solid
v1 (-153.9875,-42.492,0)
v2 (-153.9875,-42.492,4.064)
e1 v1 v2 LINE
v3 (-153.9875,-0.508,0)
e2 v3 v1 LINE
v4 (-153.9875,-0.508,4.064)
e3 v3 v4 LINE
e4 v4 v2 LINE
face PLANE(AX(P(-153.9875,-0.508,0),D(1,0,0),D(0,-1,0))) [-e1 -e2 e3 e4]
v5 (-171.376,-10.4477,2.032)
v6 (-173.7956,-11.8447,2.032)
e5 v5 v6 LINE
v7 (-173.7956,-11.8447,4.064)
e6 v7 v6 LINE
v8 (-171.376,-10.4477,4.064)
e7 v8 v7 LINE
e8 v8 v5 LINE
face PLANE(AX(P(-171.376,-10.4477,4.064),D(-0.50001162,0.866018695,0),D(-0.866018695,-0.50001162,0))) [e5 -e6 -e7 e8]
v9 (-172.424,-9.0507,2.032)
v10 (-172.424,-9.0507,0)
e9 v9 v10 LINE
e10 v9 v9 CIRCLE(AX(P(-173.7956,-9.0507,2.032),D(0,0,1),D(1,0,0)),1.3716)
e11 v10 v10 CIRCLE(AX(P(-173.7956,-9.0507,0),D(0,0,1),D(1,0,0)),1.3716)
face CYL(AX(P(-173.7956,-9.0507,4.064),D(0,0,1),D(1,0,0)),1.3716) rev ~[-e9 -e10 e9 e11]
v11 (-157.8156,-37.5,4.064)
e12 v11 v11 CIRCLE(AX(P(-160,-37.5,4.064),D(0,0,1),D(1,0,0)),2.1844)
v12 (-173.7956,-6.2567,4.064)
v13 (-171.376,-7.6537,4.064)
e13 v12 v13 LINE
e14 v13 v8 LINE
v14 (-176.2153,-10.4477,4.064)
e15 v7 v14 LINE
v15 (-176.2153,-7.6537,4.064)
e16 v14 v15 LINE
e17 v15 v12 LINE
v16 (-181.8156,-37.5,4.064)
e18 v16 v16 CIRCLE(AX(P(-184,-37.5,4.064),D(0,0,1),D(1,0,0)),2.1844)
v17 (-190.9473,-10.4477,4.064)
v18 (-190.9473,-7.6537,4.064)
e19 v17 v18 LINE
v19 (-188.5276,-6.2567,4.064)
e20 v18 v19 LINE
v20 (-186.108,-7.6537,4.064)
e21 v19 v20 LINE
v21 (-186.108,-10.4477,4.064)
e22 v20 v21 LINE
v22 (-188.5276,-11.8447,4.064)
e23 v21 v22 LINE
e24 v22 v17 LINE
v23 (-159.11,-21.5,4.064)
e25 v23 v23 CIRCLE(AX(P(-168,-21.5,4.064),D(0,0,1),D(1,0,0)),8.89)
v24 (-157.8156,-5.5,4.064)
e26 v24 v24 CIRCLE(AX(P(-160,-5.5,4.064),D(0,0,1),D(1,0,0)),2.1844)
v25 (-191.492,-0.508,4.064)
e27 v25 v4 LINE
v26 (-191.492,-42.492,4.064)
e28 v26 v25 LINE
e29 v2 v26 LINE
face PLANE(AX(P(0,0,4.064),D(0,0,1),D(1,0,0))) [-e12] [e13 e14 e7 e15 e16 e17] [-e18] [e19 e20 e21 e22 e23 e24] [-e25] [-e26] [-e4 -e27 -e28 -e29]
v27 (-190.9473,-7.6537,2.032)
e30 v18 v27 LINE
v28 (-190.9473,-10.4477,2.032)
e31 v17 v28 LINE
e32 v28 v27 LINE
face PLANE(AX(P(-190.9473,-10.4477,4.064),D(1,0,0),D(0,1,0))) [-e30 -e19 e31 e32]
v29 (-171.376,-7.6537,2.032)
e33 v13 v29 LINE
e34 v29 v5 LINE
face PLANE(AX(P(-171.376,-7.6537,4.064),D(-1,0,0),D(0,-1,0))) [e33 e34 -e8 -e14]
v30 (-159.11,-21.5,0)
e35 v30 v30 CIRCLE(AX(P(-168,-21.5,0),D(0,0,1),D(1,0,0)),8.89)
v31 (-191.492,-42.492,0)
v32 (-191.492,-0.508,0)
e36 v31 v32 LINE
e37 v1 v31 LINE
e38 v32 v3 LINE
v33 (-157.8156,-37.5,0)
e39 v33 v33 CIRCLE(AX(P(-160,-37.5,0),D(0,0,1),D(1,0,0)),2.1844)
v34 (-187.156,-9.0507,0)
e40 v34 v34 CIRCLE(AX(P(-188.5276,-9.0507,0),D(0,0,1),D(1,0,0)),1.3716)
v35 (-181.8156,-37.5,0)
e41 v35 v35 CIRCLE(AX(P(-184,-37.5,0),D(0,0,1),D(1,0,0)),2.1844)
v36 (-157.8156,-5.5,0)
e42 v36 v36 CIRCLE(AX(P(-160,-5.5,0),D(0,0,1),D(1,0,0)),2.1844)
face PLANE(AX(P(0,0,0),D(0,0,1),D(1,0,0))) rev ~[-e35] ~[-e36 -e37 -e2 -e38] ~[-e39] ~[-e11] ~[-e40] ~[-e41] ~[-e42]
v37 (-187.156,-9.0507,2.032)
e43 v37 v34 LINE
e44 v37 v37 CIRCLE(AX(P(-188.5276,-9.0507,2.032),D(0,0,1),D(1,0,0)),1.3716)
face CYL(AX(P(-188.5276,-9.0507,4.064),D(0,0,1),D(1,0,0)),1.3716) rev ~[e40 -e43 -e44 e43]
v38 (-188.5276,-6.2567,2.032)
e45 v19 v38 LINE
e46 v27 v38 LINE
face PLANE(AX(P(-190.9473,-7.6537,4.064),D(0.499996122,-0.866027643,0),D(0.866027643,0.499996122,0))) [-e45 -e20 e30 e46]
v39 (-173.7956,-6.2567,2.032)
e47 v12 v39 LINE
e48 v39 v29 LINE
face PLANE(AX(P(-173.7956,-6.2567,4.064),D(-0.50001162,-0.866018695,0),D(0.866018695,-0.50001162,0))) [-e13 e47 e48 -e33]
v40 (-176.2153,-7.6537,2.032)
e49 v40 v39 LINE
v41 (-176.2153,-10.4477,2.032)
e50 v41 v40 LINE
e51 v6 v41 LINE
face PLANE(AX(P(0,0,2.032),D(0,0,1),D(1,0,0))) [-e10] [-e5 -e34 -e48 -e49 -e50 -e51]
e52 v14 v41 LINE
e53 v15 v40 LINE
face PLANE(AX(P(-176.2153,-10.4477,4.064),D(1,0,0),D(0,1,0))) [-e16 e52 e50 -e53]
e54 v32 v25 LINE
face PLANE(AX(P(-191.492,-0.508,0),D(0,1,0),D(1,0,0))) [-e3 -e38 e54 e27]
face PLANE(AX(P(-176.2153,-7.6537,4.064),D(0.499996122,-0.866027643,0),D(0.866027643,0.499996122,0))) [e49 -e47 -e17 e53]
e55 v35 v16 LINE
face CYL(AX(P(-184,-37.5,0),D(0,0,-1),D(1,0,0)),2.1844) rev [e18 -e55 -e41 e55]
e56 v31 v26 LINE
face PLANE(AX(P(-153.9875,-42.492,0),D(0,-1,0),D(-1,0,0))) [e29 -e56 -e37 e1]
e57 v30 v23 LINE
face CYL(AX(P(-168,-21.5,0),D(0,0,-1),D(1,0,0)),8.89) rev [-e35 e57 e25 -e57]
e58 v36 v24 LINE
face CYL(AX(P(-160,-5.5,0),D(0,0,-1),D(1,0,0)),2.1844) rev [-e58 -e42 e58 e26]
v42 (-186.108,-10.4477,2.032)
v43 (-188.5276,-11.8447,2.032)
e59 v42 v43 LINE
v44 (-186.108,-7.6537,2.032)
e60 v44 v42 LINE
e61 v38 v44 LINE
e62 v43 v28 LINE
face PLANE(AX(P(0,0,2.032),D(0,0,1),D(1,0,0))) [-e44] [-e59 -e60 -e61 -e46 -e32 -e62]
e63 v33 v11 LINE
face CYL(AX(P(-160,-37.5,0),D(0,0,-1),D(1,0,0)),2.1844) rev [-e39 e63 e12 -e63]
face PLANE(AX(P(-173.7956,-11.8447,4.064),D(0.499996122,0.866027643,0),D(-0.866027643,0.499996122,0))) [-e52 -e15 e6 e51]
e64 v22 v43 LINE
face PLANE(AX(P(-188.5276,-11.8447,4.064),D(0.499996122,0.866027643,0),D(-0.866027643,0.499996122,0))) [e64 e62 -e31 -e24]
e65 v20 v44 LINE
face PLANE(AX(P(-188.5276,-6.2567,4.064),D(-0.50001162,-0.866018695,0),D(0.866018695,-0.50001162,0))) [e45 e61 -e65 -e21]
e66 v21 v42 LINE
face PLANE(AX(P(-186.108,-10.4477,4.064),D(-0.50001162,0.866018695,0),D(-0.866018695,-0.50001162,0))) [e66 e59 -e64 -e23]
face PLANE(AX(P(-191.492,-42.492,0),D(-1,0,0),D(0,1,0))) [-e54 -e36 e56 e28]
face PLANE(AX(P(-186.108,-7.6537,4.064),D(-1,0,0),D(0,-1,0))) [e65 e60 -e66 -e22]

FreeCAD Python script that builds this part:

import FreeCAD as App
import Part
import Sketcher
from FreeCAD import Vector
Q = App.Units.Quantity

doc = App.newDocument("Part")
params = doc.addObject("Spreadsheet::Sheet", "Params")
for row, (alias, value) in enumerate([
    ("sketch1_diameter", "0.7 in"),
    ("sketch1_diameter2", "0.172 in"),
    ("pad1_length", "0.16 in"),
    ("sketch2_diameter", "0.108 in"),
    ("sketch3_height", "0.11 in"),
    ("pocket2_length", "0.08 in"),
], start=1):
    params.set(f"A{row}", alias)
    params.set(f"B{row}", "=" + value)
    params.setAlias(f"B{row}", alias)

body = doc.addObject("PartDesign::Body", "Body")

sketch1 = body.newObject("Sketcher::SketchObject", "Sketch")
sketch1.AttachmentSupport = (doc.getObject("XY_Plane"), [""])
sketch1.MapMode = "FlatFace"
sketch1.addGeometry([
    Part.LineSegment(Vector(-154, -42.5, 0), Vector(-154, -0.5, 0)),
    Part.LineSegment(Vector(-154, -0.5, 0), Vector(-191.5, -0.5, 0)),
    Part.LineSegment(Vector(-191.5, -0.5, 0), Vector(-191.5, -42.5, 0)),
    Part.LineSegment(Vector(-191.5, -42.5, 0), Vector(-154, -42.5, 0)),
    Part.Circle(Vector(-184, -37.5, 0), Vector(0, 0, 1), 2.2),
    Part.Circle(Vector(-160, -37.5, 0), Vector(0, 0, 1), 2.2),
    Part.Circle(Vector(-168, -21.5, 0), Vector(0, 0, 1), 8.9),
    Part.Circle(Vector(-160, -5.5, 0), Vector(0, 0, 1), 2.2),
], False)
sketch1.addConstraint([
    Sketcher.Constraint("Coincident", 0, 2, 1, 1),
    Sketcher.Constraint("Coincident", 1, 2, 2, 1),
    Sketcher.Constraint("Coincident", 2, 2, 3, 1),
    Sketcher.Constraint("Coincident", 3, 2, 0, 1),
    Sketcher.Constraint("Vertical", 0),
    Sketcher.Constraint("Horizontal", 1),
    Sketcher.Constraint("Vertical", 2),
    Sketcher.Constraint("Horizontal", 3),
    Sketcher.Constraint("Equal", 4, 5),
    Sketcher.Constraint("Equal", 5, 7),
    Sketcher.Constraint("Horizontal", 4, 3, 5, 3),
    Sketcher.Constraint("Vertical", 5, 3, 7, 3),
    Sketcher.Constraint("Diameter", 6, Q("0.7 in")),
    Sketcher.Constraint("Diameter", 4, Q("0.172 in")),
    Sketcher.Constraint("DistanceY", 0, 2, -1, 1, Q("0.02 in")),
    Sketcher.Constraint("DistanceX", 0, 2, -1, 1, Q("6.0625 in")),
    Sketcher.Constraint("DistanceX", 1, 2, 1, 1, Q("37.5045 mm")),
    Sketcher.Constraint("DistanceY", 0, 1, 0, 2, Q("41.984 mm")),
    Sketcher.Constraint("DistanceX", 4, 3, -1, 1, Q("7.2441 in")),
    Sketcher.Constraint("DistanceY", 4, 3, -1, 1, Q("37.5 mm")),
    Sketcher.Constraint("DistanceX", 5, 3, -1, 1, Q("160 mm")),
    Sketcher.Constraint("DistanceX", 6, 3, -1, 1, Q("168 mm")),
    Sketcher.Constraint("DistanceY", 6, 3, -1, 1, Q("21.5 mm")),
    Sketcher.Constraint("DistanceY", 7, 3, -1, 1, Q("5.5 mm")),
])
sketch1.setExpression("Constraints[12]", "Params.sketch1_diameter")
sketch1.setExpression("Constraints[13]", "Params.sketch1_diameter2")
pad1 = body.newObject("PartDesign::Pad", "Pad")
pad1.Profile = sketch1
pad1.setExpression("Length", "Params.pad1_length")

sketch2 = body.newObject("Sketcher::SketchObject", "Sketch001")
sketch2.AttachmentSupport = (doc.getObject("XY_Plane"), [""])
sketch2.MapMode = "FlatFace"
sketch2.AttachmentOffset = App.Placement(Vector(0, 0, 0.16 * 25.4), App.Rotation())
sketch2.addGeometry([
    Part.Circle(Vector(-188.5, -9.1, 0), Vector(0, 0, 1), 1.4),
    Part.Circle(Vector(-173.8, -9.1, 0), Vector(0, 0, 1), 1.4),
], False)
sketch2.addConstraint([
    Sketcher.Constraint("Equal", 0, 1),
    Sketcher.Constraint("Horizontal", 0, 3, 1, 3),
    Sketcher.Constraint("Diameter", 0, Q("0.108 in")),
    Sketcher.Constraint("DistanceX", 0, 3, 1, 3, Q("0.58 in")),
    Sketcher.Constraint("DistanceX", 0, 3, -1, 1, Q("188.5276 mm")),
    Sketcher.Constraint("DistanceY", 0, 3, -1, 1, Q("9.0507 mm")),
])
sketch2.setExpression("Constraints[2]", "Params.sketch2_diameter")
pocket1 = body.newObject("PartDesign::Pocket", "Pocket")
pocket1.Profile = sketch2
pocket1.Type = "ThroughAll"

sketch3 = body.newObject("Sketcher::SketchObject", "Sketch002")
sketch3.AttachmentSupport = (doc.getObject("XY_Plane"), [""])
sketch3.MapMode = "FlatFace"
sketch3.AttachmentOffset = App.Placement(Vector(0, 0, 0.16 * 25.4), App.Rotation())
sketch3.addGeometry([
    Part.LineSegment(Vector(-190.9, -10.4, 0), Vector(-188.5, -11.8, 0)),
    Part.LineSegment(Vector(-188.5, -11.8, 0), Vector(-186.1, -10.4, 0)),
    Part.LineSegment(Vector(-186.1, -10.4, 0), Vector(-186.1, -7.7, 0)),
    Part.LineSegment(Vector(-186.1, -7.7, 0), Vector(-188.5, -6.3, 0)),
    Part.LineSegment(Vector(-188.5, -6.3, 0), Vector(-190.9, -7.7, 0)),
    Part.LineSegment(Vector(-190.9, -7.7, 0), Vector(-190.9, -10.4, 0)),
    Part.LineSegment(Vector(-176.2, -10.4, 0), Vector(-173.8, -11.8, 0)),
    Part.LineSegment(Vector(-173.8, -11.8, 0), Vector(-171.4, -10.4, 0)),
    Part.LineSegment(Vector(-171.4, -10.4, 0), Vector(-171.4, -7.7, 0)),
    Part.LineSegment(Vector(-171.4, -7.7, 0), Vector(-173.8, -6.3, 0)),
    Part.LineSegment(Vector(-173.8, -6.3, 0), Vector(-176.2, -7.7, 0)),
    Part.LineSegment(Vector(-176.2, -7.7, 0), Vector(-176.2, -10.4, 0)),
], False)
sketch3.addConstraint([
    Sketcher.Constraint("Coincident", 0, 2, 1, 1),
    Sketcher.Constraint("Coincident", 1, 2, 2, 1),
    Sketcher.Constraint("Coincident", 2, 2, 3, 1),
    Sketcher.Constraint("Coincident", 3, 2, 4, 1),
    Sketcher.Constraint("Coincident", 4, 2, 5, 1),
    Sketcher.Constraint("Coincident", 5, 2, 0, 1),
    Sketcher.Constraint("Coincident", 6, 2, 7, 1),
    Sketcher.Constraint("Coincident", 7, 2, 8, 1),
    Sketcher.Constraint("Coincident", 8, 2, 9, 1),
    Sketcher.Constraint("Coincident", 9, 2, 10, 1),
    Sketcher.Constraint("Coincident", 10, 2, 11, 1),
    Sketcher.Constraint("Coincident", 11, 2, 6, 1),
    Sketcher.Constraint("Vertical", 2),
    Sketcher.Constraint("Vertical", 5),
    Sketcher.Constraint("Vertical", 8),
    Sketcher.Constraint("Vertical", 11),
    Sketcher.Constraint("Parallel", 0, 3),
    Sketcher.Constraint("Parallel", 1, 4),
    Sketcher.Constraint("Parallel", 3, 6),
    Sketcher.Constraint("Parallel", 4, 7),
    Sketcher.Constraint("Parallel", 6, 9),
    Sketcher.Constraint("Parallel", 7, 10),
    Sketcher.Constraint("Horizontal", 2, 2, 4, 2),
    Sketcher.Constraint("Horizontal", 1, 2, 5, 2),
    Sketcher.Constraint("Horizontal", 0, 2, 6, 2),
    Sketcher.Constraint("Horizontal", 5, 2, 7, 2),
    Sketcher.Constraint("Horizontal", 4, 2, 8, 2),
    Sketcher.Constraint("Horizontal", 3, 2, 9, 2),
    Sketcher.Constraint("Horizontal", 8, 2, 10, 2),
    Sketcher.Constraint("Vertical", 0, 2, 3, 2),
    Sketcher.Constraint("DistanceY", 0, 2, 3, 2, Q("0.22 in")),
    Sketcher.Constraint("Angle", 0, Q("-29.9997 deg")),
    Sketcher.Constraint("DistanceY", 2, 1, 2, 2, Q("0.11 in")),
    Sketcher.Constraint("DistanceX", 0, 2, 6, 2, Q("0.58 in")),
    Sketcher.Constraint("DistanceX", 4, 2, -1, 1, Q("7.5176 in")),
    Sketcher.Constraint("DistanceY", 0, 2, -1, 1, Q("11.8447 mm")),
])
sketch3.setExpression("Constraints[32]", "Params.sketch3_height")
pocket2 = body.newObject("PartDesign::Pocket", "Pocket001")
pocket2.Profile = sketch3
pocket2.setExpression("Length", "Params.pocket2_length")

doc.recompute()
